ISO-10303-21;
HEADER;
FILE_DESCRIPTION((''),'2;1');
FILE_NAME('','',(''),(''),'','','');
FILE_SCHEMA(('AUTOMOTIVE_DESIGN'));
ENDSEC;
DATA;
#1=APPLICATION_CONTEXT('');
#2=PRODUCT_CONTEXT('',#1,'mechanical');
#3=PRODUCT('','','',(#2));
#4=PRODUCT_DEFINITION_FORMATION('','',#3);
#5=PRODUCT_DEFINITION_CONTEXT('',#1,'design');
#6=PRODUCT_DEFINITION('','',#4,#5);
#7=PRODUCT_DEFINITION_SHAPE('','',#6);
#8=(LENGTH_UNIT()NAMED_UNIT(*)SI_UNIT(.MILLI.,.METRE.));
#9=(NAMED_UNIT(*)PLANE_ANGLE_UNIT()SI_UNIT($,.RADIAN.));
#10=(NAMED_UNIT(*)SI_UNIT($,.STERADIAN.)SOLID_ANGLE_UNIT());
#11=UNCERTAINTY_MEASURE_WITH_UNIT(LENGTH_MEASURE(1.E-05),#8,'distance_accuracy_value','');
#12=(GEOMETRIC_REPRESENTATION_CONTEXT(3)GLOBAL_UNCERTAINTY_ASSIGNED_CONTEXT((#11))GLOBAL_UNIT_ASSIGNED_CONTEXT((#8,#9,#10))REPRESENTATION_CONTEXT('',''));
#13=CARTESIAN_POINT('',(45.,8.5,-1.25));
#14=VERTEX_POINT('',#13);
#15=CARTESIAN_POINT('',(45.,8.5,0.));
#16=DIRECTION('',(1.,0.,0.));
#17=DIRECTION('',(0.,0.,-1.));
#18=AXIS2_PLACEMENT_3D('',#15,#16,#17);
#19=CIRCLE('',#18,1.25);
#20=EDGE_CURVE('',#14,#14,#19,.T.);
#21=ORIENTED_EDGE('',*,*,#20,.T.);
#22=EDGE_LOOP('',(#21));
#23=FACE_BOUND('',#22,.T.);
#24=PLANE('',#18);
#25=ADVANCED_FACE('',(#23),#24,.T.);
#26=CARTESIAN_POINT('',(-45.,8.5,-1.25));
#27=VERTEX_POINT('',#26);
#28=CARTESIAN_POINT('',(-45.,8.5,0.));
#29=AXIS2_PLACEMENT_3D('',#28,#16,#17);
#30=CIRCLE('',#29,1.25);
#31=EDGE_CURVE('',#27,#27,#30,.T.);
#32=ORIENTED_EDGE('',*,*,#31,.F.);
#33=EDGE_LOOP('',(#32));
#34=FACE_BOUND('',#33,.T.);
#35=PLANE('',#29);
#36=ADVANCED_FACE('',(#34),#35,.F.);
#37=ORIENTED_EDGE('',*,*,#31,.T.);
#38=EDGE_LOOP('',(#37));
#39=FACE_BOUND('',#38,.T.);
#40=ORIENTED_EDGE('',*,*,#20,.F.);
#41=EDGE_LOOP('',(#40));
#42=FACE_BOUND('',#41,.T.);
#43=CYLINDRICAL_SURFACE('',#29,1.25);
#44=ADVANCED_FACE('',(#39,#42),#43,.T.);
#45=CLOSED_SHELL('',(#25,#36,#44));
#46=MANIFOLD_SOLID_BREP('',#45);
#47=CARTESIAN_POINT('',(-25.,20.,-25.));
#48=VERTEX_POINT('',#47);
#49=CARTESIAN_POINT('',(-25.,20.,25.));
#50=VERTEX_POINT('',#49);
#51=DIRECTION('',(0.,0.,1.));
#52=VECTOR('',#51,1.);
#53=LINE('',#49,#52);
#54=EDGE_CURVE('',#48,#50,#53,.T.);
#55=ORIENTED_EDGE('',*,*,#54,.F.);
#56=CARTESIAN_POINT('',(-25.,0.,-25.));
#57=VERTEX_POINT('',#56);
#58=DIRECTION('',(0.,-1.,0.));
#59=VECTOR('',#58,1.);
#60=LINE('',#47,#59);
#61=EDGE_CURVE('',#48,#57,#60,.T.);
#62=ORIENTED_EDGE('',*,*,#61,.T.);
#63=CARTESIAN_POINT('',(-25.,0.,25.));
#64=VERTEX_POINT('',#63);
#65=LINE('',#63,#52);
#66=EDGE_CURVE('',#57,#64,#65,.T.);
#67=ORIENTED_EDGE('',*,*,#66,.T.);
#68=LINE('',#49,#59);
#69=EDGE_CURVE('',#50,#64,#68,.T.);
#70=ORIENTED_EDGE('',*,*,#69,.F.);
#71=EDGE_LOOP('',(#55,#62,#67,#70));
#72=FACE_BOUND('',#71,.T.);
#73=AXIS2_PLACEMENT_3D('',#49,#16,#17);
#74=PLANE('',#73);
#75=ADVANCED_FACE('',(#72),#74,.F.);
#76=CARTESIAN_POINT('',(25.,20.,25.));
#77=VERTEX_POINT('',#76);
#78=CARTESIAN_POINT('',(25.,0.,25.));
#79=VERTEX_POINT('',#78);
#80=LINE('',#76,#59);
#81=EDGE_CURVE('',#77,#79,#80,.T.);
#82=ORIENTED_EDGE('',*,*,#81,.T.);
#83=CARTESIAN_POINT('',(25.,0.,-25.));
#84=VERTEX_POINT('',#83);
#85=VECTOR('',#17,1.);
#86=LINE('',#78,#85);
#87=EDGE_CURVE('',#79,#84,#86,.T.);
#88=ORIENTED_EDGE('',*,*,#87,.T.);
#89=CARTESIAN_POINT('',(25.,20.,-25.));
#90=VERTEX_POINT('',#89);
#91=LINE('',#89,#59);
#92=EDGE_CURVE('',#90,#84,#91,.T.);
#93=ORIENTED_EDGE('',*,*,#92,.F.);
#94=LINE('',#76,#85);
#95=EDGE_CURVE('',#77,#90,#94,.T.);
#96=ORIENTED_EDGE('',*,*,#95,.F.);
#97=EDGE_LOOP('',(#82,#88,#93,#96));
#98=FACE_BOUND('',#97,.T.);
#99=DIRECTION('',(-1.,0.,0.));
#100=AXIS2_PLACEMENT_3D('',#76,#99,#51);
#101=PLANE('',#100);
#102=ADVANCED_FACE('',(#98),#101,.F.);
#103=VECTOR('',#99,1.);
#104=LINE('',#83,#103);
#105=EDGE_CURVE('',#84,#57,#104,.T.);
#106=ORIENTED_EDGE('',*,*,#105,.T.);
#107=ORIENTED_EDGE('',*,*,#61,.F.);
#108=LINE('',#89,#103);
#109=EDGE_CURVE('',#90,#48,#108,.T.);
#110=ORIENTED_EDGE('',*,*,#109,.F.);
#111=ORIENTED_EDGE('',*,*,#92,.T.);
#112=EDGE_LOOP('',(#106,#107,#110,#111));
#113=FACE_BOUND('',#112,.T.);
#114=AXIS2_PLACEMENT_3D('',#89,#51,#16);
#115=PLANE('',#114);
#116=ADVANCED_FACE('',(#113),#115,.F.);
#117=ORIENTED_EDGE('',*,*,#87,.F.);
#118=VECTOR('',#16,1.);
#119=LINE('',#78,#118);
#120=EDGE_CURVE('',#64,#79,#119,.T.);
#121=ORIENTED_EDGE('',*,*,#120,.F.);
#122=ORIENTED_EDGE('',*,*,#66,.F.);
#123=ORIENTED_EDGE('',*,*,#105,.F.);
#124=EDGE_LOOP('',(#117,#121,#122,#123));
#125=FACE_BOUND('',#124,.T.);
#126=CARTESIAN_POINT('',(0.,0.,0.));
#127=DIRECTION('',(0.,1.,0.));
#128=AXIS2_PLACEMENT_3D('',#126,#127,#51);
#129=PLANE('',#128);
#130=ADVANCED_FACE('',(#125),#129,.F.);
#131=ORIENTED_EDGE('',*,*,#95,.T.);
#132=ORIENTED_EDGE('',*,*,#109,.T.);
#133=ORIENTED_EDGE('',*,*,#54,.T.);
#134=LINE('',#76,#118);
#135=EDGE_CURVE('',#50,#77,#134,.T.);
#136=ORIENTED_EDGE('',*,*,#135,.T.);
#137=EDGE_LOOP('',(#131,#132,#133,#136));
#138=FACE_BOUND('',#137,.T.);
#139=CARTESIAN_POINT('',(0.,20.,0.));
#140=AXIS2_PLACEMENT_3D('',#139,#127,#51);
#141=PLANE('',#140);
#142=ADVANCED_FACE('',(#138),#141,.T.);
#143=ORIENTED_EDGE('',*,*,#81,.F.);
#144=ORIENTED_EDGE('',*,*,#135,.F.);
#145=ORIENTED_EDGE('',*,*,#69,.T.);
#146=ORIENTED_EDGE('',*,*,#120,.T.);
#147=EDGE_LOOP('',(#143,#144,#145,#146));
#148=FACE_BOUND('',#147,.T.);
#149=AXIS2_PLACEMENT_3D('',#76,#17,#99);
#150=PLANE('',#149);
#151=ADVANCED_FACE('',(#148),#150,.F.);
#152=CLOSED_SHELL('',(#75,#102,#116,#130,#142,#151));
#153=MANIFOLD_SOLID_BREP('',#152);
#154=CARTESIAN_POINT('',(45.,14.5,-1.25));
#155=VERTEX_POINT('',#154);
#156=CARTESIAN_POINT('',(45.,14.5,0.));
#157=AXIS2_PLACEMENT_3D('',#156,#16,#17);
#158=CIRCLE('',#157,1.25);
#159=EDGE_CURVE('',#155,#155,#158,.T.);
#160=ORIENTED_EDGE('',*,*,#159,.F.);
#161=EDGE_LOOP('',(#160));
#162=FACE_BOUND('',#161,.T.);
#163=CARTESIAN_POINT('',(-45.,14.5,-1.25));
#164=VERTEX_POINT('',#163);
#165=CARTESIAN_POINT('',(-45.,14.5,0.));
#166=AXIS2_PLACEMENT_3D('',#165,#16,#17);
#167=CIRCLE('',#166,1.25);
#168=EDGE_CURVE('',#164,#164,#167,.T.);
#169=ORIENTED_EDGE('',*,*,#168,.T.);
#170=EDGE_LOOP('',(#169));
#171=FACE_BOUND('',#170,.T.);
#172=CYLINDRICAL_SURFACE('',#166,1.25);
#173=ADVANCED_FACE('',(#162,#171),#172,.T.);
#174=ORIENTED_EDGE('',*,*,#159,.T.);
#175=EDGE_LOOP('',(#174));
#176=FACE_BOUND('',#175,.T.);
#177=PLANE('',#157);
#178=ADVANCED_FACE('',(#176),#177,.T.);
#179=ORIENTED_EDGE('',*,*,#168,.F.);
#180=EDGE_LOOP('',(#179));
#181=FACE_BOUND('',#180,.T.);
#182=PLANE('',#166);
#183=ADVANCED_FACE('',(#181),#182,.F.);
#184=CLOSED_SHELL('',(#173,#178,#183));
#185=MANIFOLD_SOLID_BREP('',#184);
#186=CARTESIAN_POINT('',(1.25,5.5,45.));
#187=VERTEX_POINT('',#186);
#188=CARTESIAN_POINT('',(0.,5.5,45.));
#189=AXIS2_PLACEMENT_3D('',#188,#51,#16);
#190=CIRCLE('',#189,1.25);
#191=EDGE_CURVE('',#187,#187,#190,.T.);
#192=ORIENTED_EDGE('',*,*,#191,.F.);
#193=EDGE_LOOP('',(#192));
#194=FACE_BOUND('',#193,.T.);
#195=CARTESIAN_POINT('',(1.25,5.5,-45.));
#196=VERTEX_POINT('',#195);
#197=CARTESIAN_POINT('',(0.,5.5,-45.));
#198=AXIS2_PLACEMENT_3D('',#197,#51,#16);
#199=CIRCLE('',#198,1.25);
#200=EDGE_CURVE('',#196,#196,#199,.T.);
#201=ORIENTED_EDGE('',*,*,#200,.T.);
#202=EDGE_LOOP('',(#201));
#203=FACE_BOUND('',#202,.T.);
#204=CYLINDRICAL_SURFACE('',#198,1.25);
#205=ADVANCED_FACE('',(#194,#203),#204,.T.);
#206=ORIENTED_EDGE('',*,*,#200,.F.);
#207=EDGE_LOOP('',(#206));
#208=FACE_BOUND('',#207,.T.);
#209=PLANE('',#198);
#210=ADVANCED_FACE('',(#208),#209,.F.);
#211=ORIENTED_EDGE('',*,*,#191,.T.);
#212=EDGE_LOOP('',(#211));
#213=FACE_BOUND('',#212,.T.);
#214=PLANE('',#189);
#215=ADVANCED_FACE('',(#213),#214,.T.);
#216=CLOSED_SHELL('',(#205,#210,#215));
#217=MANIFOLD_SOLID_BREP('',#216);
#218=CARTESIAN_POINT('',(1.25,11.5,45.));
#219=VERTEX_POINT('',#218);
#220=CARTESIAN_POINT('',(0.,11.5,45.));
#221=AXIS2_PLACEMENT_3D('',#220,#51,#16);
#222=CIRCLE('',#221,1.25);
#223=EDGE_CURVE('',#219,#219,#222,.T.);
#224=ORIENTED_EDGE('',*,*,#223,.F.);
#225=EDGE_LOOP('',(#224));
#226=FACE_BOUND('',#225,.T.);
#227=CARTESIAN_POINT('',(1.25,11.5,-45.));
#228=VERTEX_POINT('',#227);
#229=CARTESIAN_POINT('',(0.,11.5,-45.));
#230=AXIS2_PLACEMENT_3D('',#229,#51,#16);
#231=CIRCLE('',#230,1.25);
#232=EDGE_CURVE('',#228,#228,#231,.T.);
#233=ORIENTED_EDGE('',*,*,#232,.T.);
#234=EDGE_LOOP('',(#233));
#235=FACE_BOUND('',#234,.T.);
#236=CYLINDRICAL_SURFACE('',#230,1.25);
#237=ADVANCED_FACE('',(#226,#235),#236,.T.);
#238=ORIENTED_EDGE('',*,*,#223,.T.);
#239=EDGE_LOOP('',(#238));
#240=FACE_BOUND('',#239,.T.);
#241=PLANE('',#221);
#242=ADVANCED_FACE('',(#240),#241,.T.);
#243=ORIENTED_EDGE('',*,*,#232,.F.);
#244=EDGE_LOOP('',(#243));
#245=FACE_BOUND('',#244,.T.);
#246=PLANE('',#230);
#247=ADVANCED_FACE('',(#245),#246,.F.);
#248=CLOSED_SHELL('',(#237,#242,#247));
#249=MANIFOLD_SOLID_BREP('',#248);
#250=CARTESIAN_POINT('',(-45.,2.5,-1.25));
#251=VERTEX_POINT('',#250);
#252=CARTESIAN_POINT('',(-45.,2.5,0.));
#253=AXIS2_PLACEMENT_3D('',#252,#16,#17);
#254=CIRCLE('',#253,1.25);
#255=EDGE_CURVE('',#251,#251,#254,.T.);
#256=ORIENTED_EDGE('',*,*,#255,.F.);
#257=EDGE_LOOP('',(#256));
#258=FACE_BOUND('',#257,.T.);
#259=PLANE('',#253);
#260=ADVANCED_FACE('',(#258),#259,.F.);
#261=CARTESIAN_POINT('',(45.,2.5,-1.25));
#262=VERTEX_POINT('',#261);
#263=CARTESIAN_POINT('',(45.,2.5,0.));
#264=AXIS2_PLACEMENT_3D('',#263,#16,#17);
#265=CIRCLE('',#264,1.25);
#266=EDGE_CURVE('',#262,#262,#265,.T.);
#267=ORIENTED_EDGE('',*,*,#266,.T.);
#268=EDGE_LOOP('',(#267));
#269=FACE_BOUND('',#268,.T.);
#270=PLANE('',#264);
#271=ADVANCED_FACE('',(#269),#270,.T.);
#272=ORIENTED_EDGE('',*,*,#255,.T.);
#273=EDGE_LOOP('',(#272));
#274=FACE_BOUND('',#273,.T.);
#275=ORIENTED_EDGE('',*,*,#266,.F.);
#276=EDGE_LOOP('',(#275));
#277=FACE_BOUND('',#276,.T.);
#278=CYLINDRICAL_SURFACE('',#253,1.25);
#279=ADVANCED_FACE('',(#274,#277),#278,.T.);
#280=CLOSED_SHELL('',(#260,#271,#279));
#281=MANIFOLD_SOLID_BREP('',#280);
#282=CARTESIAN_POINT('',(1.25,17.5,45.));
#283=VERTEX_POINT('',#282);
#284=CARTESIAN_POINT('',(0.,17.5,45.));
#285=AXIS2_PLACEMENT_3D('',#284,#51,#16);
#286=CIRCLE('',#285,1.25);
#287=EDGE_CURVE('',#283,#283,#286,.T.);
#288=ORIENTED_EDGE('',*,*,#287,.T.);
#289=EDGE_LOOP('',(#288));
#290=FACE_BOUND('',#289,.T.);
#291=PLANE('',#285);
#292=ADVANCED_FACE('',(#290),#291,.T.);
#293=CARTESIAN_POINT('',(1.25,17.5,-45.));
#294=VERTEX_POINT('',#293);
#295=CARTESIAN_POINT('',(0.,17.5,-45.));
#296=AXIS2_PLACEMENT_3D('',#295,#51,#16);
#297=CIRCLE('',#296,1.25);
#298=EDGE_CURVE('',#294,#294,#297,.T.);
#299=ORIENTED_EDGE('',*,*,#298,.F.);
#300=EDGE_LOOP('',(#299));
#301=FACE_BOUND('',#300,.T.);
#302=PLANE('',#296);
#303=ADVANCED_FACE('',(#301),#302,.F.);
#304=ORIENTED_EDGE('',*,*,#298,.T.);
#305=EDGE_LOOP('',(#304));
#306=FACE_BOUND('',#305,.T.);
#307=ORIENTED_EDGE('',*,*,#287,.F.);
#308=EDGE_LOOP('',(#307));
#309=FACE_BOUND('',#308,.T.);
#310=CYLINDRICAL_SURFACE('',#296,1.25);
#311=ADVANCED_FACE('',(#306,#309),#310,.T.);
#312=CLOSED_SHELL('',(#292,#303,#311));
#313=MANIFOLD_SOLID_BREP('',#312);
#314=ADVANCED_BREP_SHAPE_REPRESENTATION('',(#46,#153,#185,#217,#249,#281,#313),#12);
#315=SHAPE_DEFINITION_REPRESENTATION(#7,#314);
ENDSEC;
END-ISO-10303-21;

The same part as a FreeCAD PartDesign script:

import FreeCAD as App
import Part
import Sketcher

V = App.Vector

doc = App.newDocument("Part")
body = doc.addObject("PartDesign::Body", "Body")

sketch1 = body.newObject("Sketcher::SketchObject", "Sketch")
sketch1.AttachmentSupport = (doc.getObject("XZ_Plane"), [""])
sketch1.MapMode = "FlatFace"
sketch1.addGeometry(Part.LineSegment(V(-25, -25, 0), V(-25, 25, 0)), False)
sketch1.addGeometry(Part.LineSegment(V(-25, 25, 0), V(25, 25, 0)), False)
sketch1.addGeometry(Part.LineSegment(V(25, 25, 0), V(25, -25, 0)), False)
sketch1.addGeometry(Part.LineSegment(V(25, -25, 0), V(-25, -25, 0)), False)
sketch1.addConstraint(Sketcher.Constraint("Coincident", 0, 2, 1, 1))
sketch1.addConstraint(Sketcher.Constraint("Coincident", 1, 2, 2, 1))
sketch1.addConstraint(Sketcher.Constraint("Coincident", 2, 2, 3, 1))
sketch1.addConstraint(Sketcher.Constraint("Coincident", 3, 2, 0, 1))
sketch1.addConstraint(Sketcher.Constraint("Vertical", 0))
sketch1.addConstraint(Sketcher.Constraint("Horizontal", 1))
sketch1.addConstraint(Sketcher.Constraint("Vertical", 2))
sketch1.addConstraint(Sketcher.Constraint("Horizontal", 3))
sketch1.addConstraint(Sketcher.Constraint("Symmetric", 0, 2, 2, 2, -1, 1))
sketch1.addConstraint(Sketcher.Constraint("Equal", 3, 0))
sketch1.addConstraint(Sketcher.Constraint("DistanceX", 1, 1, 1, 2, 50.0))
pad1 = body.newObject("PartDesign::Pad", "Pad")
pad1.Profile = sketch1
pad1.Length = 20
pad1.Reversed = True
body2 = doc.addObject("PartDesign::Body", "Body001")

sketch2 = body2.newObject("Sketcher::SketchObject", "Sketch001")
sketch2.AttachmentSupport = (doc.getObject("XY_Plane001"), [""])
sketch2.MapMode = "FlatFace"
sketch2.AttachmentOffset = App.Placement(V(0, 0, 25), App.Rotation())
sketch2.addGeometry(Part.Circle(V(0, 17.5, 0), V(0, 0, 1), 1.2), False)
sketch2.addConstraint(Sketcher.Constraint("PointOnObject", 0, 3, -2))
sketch2.addConstraint(Sketcher.Constraint("Diameter", 0, 2.5))
sketch2.addConstraint(Sketcher.Constraint("DistanceY", -1, 1, 0, 3, 17.5))
pad2 = body2.newObject("PartDesign::Pad", "Pad001")
pad2.Profile = sketch2
pad2.Type = "TwoLengths"
pad2.Length = 20
pad2.Length2 = 70
body3 = doc.addObject("PartDesign::Body", "Body002")

sketch3 = body3.newObject("Sketcher::SketchObject", "Sketch002")
sketch3.AttachmentSupport = (doc.getObject("XY_Plane002"), [""])
sketch3.MapMode = "FlatFace"
sketch3.AttachmentOffset = App.Placement(V(0, 0, 25), App.Rotation())
sketch3.addGeometry(Part.Circle(V(0, 11.5, 0), V(0, 0, 1), 1.2), False)
sketch3.addConstraint(Sketcher.Constraint("PointOnObject", 0, 3, -2))
sketch3.addConstraint(Sketcher.Constraint("Diameter", 0, 2.5))
sketch3.addConstraint(Sketcher.Constraint("DistanceY", -1, 1, 0, 3, 11.5))
pad3 = body3.newObject("PartDesign::Pad", "Pad002")
pad3.Profile = sketch3
pad3.Type = "TwoLengths"
pad3.Length = 20
pad3.Length2 = 70
body4 = doc.addObject("PartDesign::Body", "Body003")

sketch4 = body4.newObject("Sketcher::SketchObject", "Sketch003")
sketch4.AttachmentSupport = (doc.getObject("XY_Plane003"), [""])
sketch4.MapMode = "FlatFace"
sketch4.AttachmentOffset = App.Placement(V(0, 0, 25), App.Rotation())
sketch4.addGeometry(Part.Circle(V(0, 5.5, 0), V(0, 0, 1), 1.2), False)
sketch4.addConstraint(Sketcher.Constraint("PointOnObject", 0, 3, -2))
sketch4.addConstraint(Sketcher.Constraint("Diameter", 0, 2.5))
sketch4.addConstraint(Sketcher.Constraint("DistanceY", -1, 1, 0, 3, 5.5))
pad4 = body4.newObject("PartDesign::Pad", "Pad003")
pad4.Profile = sketch4
pad4.Type = "TwoLengths"
pad4.Length = 20
pad4.Length2 = 70
body5 = doc.addObject("PartDesign::Body", "Body004")

sketch5 = body5.newObject("Sketcher::SketchObject", "Sketch004")
sketch5.AttachmentSupport = (doc.getObject("YZ_Plane004"), [""])
sketch5.MapMode = "FlatFace"
sketch5.AttachmentOffset = App.Placement(V(0, 0, 25), App.Rotation())
sketch5.addGeometry(Part.Circle(V(14.5, 0, 0), V(0, 0, 1), 1.2), False)
sketch5.addConstraint(Sketcher.Constraint("PointOnObject", 0, 3, -1))
sketch5.addConstraint(Sketcher.Constraint("Diameter", 0, 2.5))
sketch5.addConstraint(Sketcher.Constraint("DistanceX", -1, 1, 0, 3, 14.5))
pad5 = body5.newObject("PartDesign::Pad", "Pad004")
pad5.Profile = sketch5
pad5.Type = "TwoLengths"
pad5.Length = 20
pad5.Length2 = 70
body6 = doc.addObject("PartDesign::Body", "Body005")

sketch6 = body6.newObject("Sketcher::SketchObject", "Sketch005")
sketch6.AttachmentSupport = (doc.getObject("YZ_Plane005"), [""])
sketch6.MapMode = "FlatFace"
sketch6.AttachmentOffset = App.Placement(V(0, 0, 25), App.Rotation())
sketch6.addGeometry(Part.Circle(V(8.5, 0, 0), V(0, 0, 1), 1.2), False)
sketch6.addConstraint(Sketcher.Constraint("PointOnObject", 0, 3, -1))
sketch6.addConstraint(Sketcher.Constraint("Diameter", 0, 2.5))
sketch6.addConstraint(Sketcher.Constraint("DistanceX", -1, 1, 0, 3, 8.5))
pad6 = body6.newObject("PartDesign::Pad", "Pad005")
pad6.Profile = sketch6
pad6.Type = "TwoLengths"
pad6.Length = 20
pad6.Length2 = 70
body7 = doc.addObject("PartDesign::Body", "Body006")

sketch7 = body7.newObject("Sketcher::SketchObject", "Sketch006")
sketch7.AttachmentSupport = (doc.getObject("YZ_Plane006"), [""])
sketch7.MapMode = "FlatFace"
sketch7.AttachmentOffset = App.Placement(V(0, 0, 25), App.Rotation())
sketch7.addGeometry(Part.Circle(V(2.5, 0, 0), V(0, 0, 1), 1.2), False)
sketch7.addConstraint(Sketcher.Constraint("PointOnObject", 0, 3, -1))
sketch7.addConstraint(Sketcher.Constraint("Diameter", 0, 2.5))
sketch7.addConstraint(Sketcher.Constraint("DistanceX", -1, 1, 0, 3, 2.5))
pad7 = body7.newObject("PartDesign::Pad", "Pad006")
pad7.Profile = sketch7
pad7.Type = "TwoLengths"
pad7.Length = 20
pad7.Length2 = 70

doc.recompute()
